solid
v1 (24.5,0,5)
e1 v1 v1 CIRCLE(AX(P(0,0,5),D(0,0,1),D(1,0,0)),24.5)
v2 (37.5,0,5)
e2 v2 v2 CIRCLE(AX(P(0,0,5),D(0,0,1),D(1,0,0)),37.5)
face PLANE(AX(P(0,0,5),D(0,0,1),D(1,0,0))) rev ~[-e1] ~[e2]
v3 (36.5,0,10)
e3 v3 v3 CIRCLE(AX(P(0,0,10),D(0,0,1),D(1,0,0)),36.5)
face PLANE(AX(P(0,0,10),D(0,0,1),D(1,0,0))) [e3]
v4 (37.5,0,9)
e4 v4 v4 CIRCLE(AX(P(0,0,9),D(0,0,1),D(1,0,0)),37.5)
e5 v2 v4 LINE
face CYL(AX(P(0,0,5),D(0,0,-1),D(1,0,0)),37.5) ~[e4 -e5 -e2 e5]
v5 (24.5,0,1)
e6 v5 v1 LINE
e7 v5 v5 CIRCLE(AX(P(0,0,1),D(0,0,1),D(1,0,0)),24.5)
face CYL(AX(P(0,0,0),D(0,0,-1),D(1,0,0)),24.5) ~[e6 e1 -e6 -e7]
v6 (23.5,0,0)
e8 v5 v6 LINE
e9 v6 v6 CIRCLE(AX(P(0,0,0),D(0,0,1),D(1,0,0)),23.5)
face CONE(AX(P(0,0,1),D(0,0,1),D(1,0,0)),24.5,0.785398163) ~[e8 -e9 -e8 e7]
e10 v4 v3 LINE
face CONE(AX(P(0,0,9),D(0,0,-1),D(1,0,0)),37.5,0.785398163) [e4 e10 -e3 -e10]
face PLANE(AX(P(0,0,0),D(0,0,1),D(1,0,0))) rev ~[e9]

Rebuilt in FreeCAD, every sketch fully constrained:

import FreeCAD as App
import Part
import Sketcher
from FreeCAD import Vector


def edges_at(feature, points):
    """Names of the edges that pass closest to the given points."""
    edges = feature.Shape.Edges
    near = lambda p: min(range(len(edges)), key=lambda i: edges[i].distToShape(Part.Vertex(*p))[0])
    return sorted({f"Edge{near(p) + 1}" for p in points})

doc = App.newDocument("Part")
body = doc.addObject("PartDesign::Body", "Body")

# Sketch on XY plane
sketch1 = body.newObject("Sketcher::SketchObject", "Sketch")
sketch1.AttachmentSupport = (doc.getObject("XY_Plane"), [""])
sketch1.MapMode = "FlatFace"
sketch1.addGeometry(Part.Circle(Vector(0, 0, 0), Vector(0, 0, 1), 24.5), False)
sketch1.addConstraint(Sketcher.Constraint("Coincident", 0, 3, -1, 1))
sketch1.addConstraint(Sketcher.Constraint("Diameter", 0, 49.0))
pad1 = body.newObject("PartDesign::Pad", "Pad")
pad1.Profile = sketch1
pad1.Length = 5

# Sketch on XY plane
sketch2 = body.newObject("Sketcher::SketchObject", "Sketch001")
sketch2.AttachmentSupport = (doc.getObject("XY_Plane"), [""])
sketch2.MapMode = "FlatFace"
sketch2.AttachmentOffset = App.Placement(Vector(0, 0, 5), App.Rotation())
sketch2.addGeometry(Part.Circle(Vector(0, 0, 0), Vector(0, 0, 1), 37.5), False)
sketch2.addConstraint(Sketcher.Constraint("Coincident", 0, 3, -1, 1))
sketch2.addConstraint(Sketcher.Constraint("Diameter", 0, 75.0))
pad2 = body.newObject("PartDesign::Pad", "Pad001")
pad2.Profile = sketch2
pad2.Length = 5
doc.recompute()

chamfer = body.newObject("PartDesign::Chamfer", "Chamfer")
chamfer.Base = (pad2, edges_at(pad2, [(-37.5, 0, 10)]))
chamfer.Size = 1
doc.recompute()

chamfer2 = body.newObject("PartDesign::Chamfer", "Chamfer001")
chamfer2.Base = (chamfer, edges_at(chamfer, [(-24.5, 0, 0)]))
chamfer2.Size = 1

doc.recompute()
